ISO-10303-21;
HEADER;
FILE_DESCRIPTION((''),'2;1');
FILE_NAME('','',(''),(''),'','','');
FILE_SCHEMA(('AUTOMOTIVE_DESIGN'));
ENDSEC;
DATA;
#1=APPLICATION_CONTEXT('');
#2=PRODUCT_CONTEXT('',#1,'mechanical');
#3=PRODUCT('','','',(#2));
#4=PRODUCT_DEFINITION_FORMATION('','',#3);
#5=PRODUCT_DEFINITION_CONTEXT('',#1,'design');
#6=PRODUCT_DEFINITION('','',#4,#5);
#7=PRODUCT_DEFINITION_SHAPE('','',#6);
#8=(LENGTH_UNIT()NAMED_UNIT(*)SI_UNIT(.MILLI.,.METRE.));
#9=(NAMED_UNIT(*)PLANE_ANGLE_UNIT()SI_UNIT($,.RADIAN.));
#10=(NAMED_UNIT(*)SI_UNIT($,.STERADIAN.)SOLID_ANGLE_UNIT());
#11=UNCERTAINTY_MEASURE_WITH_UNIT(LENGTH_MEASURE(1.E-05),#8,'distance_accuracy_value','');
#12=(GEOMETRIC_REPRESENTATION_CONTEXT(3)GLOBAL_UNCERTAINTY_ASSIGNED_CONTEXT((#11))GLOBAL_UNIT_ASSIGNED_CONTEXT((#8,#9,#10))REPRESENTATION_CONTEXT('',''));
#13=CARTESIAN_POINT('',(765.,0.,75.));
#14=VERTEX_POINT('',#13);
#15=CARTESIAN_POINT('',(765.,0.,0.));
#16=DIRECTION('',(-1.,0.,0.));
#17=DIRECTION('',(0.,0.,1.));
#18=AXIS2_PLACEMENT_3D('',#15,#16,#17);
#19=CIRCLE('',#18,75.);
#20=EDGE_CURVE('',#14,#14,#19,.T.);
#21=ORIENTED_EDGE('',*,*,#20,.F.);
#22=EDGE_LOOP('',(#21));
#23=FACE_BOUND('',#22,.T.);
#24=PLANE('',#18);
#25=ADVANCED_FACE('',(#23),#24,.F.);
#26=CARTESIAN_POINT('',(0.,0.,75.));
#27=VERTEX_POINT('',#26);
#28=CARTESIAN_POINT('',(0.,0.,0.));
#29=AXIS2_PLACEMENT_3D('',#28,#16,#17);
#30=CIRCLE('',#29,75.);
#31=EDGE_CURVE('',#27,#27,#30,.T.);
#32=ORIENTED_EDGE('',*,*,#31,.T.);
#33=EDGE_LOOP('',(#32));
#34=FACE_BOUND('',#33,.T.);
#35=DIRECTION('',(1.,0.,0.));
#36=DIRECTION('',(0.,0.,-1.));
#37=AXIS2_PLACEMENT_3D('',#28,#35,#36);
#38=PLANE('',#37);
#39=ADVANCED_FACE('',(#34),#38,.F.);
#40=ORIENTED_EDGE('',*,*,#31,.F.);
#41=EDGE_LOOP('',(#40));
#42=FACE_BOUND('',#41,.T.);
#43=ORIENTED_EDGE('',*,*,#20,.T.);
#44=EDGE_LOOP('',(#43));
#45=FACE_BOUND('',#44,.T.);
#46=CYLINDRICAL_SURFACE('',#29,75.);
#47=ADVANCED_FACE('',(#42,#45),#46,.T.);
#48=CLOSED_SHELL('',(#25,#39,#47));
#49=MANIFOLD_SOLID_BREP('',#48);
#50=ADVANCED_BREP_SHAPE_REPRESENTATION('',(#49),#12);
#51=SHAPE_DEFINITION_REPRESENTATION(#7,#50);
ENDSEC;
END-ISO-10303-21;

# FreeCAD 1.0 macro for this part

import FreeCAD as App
import Part
import Sketcher

V = App.Vector

doc = App.newDocument("Part")
body = doc.addObject("PartDesign::Body", "Body")

sketch1 = body.newObject("Sketcher::SketchObject", "Sketch")
sketch1.AttachmentSupport = (doc.getObject("XY_Plane"), [""])
sketch1.MapMode = "FlatFace"
sketch1.addGeometry([
    Part.LineSegment(V(0, 75, 0), V(0, 0, 0)),
    Part.LineSegment(V(0, 0, 0), V(765, 0, 0)),
    Part.LineSegment(V(765, 0, 0), V(765, 75, 0)),
    Part.LineSegment(V(765, 75, 0), V(0, 75, 0)),
], False)
sketch1.addConstraint([
    Sketcher.Constraint("Coincident", 0, 2, 1, 1),
    Sketcher.Constraint("Coincident", 1, 2, 2, 1),
    Sketcher.Constraint("Coincident", 2, 2, 3, 1),
    Sketcher.Constraint("Coincident", 3, 2, 0, 1),
    Sketcher.Constraint("Vertical", 0),
    Sketcher.Constraint("Horizontal", 1),
    Sketcher.Constraint("Vertical", 2),
    Sketcher.Constraint("Horizontal", 3),
    Sketcher.Constraint("Coincident", 0, 2, -1, 1),
    Sketcher.Constraint("DistanceX", 1, 1, 1, 2, 765.0),
    Sketcher.Constraint("DistanceY", 0, 2, 0, 1, 75.0),
])
revolution = body.newObject("PartDesign::Revolution", "Revolution")
revolution.Profile = sketch1
revolution.ReferenceAxis = (sketch1, ["H_Axis"])
revolution.Angle = 360

doc.recompute()
